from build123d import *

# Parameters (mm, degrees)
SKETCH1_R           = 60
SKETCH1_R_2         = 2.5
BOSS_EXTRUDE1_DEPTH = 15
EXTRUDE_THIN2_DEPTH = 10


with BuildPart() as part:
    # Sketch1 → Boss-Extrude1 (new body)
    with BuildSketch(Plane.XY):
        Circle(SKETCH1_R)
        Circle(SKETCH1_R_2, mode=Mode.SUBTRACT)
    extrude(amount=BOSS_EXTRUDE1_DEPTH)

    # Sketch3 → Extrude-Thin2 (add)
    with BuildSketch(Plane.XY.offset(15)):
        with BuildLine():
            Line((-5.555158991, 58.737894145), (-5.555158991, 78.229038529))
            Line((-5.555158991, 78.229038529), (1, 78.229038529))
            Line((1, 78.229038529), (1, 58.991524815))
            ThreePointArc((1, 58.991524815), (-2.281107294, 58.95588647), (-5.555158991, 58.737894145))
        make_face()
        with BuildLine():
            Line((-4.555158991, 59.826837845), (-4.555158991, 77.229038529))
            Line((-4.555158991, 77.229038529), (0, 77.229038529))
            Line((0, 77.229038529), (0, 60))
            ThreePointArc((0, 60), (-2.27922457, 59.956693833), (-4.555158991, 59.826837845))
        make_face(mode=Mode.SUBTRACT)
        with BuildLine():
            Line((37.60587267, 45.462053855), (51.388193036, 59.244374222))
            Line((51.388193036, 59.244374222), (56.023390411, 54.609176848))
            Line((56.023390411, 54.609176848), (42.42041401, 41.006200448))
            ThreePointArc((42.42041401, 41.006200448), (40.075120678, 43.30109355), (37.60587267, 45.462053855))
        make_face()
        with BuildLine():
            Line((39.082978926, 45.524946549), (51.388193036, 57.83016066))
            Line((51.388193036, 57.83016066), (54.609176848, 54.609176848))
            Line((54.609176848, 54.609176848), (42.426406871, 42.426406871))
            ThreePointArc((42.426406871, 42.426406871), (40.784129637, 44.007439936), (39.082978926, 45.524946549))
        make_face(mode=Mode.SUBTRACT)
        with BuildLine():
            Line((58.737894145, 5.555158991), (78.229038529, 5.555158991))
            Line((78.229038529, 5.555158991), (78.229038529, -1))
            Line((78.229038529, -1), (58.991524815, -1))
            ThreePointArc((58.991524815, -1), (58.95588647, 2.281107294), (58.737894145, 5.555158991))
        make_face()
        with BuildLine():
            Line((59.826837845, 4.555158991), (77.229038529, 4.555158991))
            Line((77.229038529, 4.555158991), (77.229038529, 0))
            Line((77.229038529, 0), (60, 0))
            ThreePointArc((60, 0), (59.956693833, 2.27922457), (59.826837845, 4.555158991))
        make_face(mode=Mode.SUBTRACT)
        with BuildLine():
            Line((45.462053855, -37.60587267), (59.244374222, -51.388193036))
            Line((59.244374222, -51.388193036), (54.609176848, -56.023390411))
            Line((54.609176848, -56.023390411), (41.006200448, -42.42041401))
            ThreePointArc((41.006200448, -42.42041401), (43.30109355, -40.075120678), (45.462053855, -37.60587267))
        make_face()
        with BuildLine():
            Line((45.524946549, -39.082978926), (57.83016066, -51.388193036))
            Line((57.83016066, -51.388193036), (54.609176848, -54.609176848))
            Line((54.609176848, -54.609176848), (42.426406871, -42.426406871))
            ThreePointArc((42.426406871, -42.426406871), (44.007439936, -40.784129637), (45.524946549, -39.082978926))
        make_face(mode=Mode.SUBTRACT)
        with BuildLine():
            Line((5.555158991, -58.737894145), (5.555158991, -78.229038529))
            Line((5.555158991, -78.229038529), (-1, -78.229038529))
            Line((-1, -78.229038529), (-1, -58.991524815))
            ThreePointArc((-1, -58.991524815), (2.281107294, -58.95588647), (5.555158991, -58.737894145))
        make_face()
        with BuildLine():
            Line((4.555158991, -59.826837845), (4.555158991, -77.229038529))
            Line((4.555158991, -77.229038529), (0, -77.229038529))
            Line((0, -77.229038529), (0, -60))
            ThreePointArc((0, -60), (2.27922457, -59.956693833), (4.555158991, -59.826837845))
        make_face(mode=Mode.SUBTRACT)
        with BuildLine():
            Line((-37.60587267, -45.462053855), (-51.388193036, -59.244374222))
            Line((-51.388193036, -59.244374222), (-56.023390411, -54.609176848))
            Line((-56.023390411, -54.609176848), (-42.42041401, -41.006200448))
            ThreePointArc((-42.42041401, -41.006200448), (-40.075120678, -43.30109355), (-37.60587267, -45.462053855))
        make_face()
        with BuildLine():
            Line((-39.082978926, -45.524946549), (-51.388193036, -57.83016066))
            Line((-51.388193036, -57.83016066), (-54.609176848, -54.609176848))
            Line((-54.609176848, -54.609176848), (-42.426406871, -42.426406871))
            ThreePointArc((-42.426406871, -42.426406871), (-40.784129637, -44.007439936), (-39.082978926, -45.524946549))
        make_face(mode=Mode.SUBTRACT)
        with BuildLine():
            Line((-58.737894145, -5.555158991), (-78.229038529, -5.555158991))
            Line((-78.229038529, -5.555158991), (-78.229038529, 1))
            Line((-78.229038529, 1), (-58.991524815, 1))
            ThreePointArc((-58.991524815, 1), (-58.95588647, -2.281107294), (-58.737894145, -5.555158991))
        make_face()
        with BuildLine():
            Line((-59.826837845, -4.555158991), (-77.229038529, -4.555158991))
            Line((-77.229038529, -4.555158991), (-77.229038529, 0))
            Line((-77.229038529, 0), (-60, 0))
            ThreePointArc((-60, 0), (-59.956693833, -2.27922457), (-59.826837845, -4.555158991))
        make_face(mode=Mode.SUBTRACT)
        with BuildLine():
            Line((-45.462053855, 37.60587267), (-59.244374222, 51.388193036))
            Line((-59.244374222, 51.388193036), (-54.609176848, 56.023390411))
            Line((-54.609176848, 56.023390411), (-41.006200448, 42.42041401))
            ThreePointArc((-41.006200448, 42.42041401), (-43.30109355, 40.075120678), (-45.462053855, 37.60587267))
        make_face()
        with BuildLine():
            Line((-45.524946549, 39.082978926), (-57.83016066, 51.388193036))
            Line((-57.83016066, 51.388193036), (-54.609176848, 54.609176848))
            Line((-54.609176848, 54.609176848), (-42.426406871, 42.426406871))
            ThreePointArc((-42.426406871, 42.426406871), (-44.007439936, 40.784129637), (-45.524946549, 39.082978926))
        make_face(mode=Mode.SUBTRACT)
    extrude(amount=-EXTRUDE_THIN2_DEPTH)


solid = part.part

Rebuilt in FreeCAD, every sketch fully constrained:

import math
import FreeCAD as App
import Part
import Sketcher

V = App.Vector

doc = App.newDocument("Part")
body = doc.addObject("PartDesign::Body", "Body")

# Sketch on XY plane
sketch1 = body.newObject("Sketcher::SketchObject", "Sketch")
sketch1.AttachmentSupport = (doc.getObject("XY_Plane"), [""])
sketch1.MapMode = "FlatFace"
sketch1.addGeometry(Part.Circle(V(0, 0, 0), V(0, 0, 1), 60), False)
sketch1.addGeometry(Part.Circle(V(0, 0, 0), V(0, 0, 1), 2.5), False)
sketch1.addConstraint(Sketcher.Constraint("Coincident", 0, 3, -1, 1))
sketch1.addConstraint(Sketcher.Constraint("Coincident", 1, 3, -1, 1))
sketch1.addConstraint(Sketcher.Constraint("Diameter", 0, 120.0))
sketch1.addConstraint(Sketcher.Constraint("Diameter", 1, 5.0))
pad1 = body.newObject("PartDesign::Pad", "Pad")
pad1.Profile = sketch1
pad1.Length = 15

# Sketch on XY plane
sketch2 = body.newObject("Sketcher::SketchObject", "Sketch001")
sketch2.AttachmentSupport = (doc.getObject("XY_Plane"), [""])
sketch2.MapMode = "FlatFace"
sketch2.AttachmentOffset = App.Placement(V(0, 0, 15), App.Rotation())
sketch2.addGeometry(Part.LineSegment(V(-5.6, 78.2, 0), V(-5.6, 58.7, 0)), False)
sketch2.addGeometry(Part.ArcOfCircle(Part.Circle(V(0, 0, 0), V(0, 0, 1), 59), math.radians(89.03), math.radians(95.4)), False)
sketch2.addGeometry(Part.LineSegment(V(1, 59, 0), V(1, 78.2, 0)), False)
sketch2.addGeometry(Part.LineSegment(V(1, 78.2, 0), V(-5.6, 78.2, 0)), False)
sketch2.addGeometry(Part.LineSegment(V(-4.6, 59.8, 0), V(-4.6, 77.2, 0)), False)
sketch2.addGeometry(Part.LineSegment(V(-4.6, 77.2, 0), V(0, 77.2, 0)), False)
sketch2.addGeometry(Part.LineSegment(V(0, 77.2, 0), V(0, 60, 0)), False)
sketch2.addGeometry(Part.ArcOfCircle(Part.Circle(V(0, 0, 0), V(0, 0, 1), 60), math.radians(90), math.radians(94.35)), False)
sketch2.addGeometry(Part.LineSegment(V(51.4, 59.2, 0), V(37.6, 45.5, 0)), False)
sketch2.addGeometry(Part.ArcOfCircle(Part.Circle(V(0, 0, 0), V(0, 0, 1), 59), math.radians(44.03), math.radians(50.4)), False)
sketch2.addGeometry(Part.LineSegment(V(42.4, 41, 0), V(56, 54.6, 0)), False)
sketch2.addGeometry(Part.LineSegment(V(56, 54.6, 0), V(51.4, 59.2, 0)), False)
sketch2.addGeometry(Part.LineSegment(V(39.1, 45.5, 0), V(51.4, 57.8, 0)), False)
sketch2.addGeometry(Part.LineSegment(V(51.4, 57.8, 0), V(54.6, 54.6, 0)), False)
sketch2.addGeometry(Part.LineSegment(V(54.6, 54.6, 0), V(42.4, 42.4, 0)), False)
sketch2.addGeometry(Part.ArcOfCircle(Part.Circle(V(0, 0, 0), V(0, 0, 1), 60), math.radians(45), math.radians(49.35)), False)
sketch2.addGeometry(Part.LineSegment(V(78.2, 5.6, 0), V(58.7, 5.6, 0)), False)
sketch2.addGeometry(Part.ArcOfCircle(Part.Circle(V(0, 0, 0), V(0, 0, 1), 59), math.radians(-0.97), math.radians(5.4)), False)
sketch2.addGeometry(Part.LineSegment(V(59, -1, 0), V(78.2, -1, 0)), False)
sketch2.addGeometry(Part.LineSegment(V(78.2, -1, 0), V(78.2, 5.6, 0)), False)
sketch2.addGeometry(Part.LineSegment(V(59.8, 4.6, 0), V(77.2, 4.6, 0)), False)
sketch2.addGeometry(Part.LineSegment(V(77.2, 4.6, 0), V(77.2, 0, 0)), False)
sketch2.addGeometry(Part.LineSegment(V(77.2, 0, 0), V(60, 0, 0)), False)
sketch2.addGeometry(Part.ArcOfCircle(Part.Circle(V(0, 0, 0), V(0, 0, 1), 60), math.radians(0), math.radians(4.35)), False)
sketch2.addGeometry(Part.LineSegment(V(59.2, -51.4, 0), V(45.5, -37.6, 0)), False)
sketch2.addGeometry(Part.ArcOfCircle(Part.Circle(V(0, 0, 0), V(0, 0, 1), 59), math.radians(-45.97), math.radians(-39.6)), False)
sketch2.addGeometry(Part.LineSegment(V(41, -42.4, 0), V(54.6, -56, 0)), False)
sketch2.addGeometry(Part.LineSegment(V(54.6, -56, 0), V(59.2, -51.4, 0)), False)
sketch2.addGeometry(Part.LineSegment(V(45.5, -39.1, 0), V(57.8, -51.4, 0)), False)
sketch2.addGeometry(Part.LineSegment(V(57.8, -51.4, 0), V(54.6, -54.6, 0)), False)
sketch2.addGeometry(Part.LineSegment(V(54.6, -54.6, 0), V(42.4, -42.4, 0)), False)
sketch2.addGeometry(Part.ArcOfCircle(Part.Circle(V(0, 0, 0), V(0, 0, 1), 60), math.radians(-45), math.radians(-40.65)), False)
sketch2.addGeometry(Part.LineSegment(V(5.6, -78.2, 0), V(5.6, -58.7, 0)), False)
sketch2.addGeometry(Part.ArcOfCircle(Part.Circle(V(0, 0, 0), V(0, 0, 1), 59), math.radians(-90.97), math.radians(-84.6)), False)
sketch2.addGeometry(Part.LineSegment(V(-1, -59, 0), V(-1, -78.2, 0)), False)
sketch2.addGeometry(Part.LineSegment(V(-1, -78.2, 0), V(5.6, -78.2, 0)), False)
sketch2.addGeometry(Part.LineSegment(V(4.6, -59.8, 0), V(4.6, -77.2, 0)), False)
sketch2.addGeometry(Part.LineSegment(V(4.6, -77.2, 0), V(0, -77.2, 0)), False)
sketch2.addGeometry(Part.LineSegment(V(0, -77.2, 0), V(0, -60, 0)), False)
sketch2.addGeometry(Part.ArcOfCircle(Part.Circle(V(0, 0, 0), V(0, 0, 1), 60), math.radians(-90), math.radians(-85.65)), False)
sketch2.addGeometry(Part.LineSegment(V(-51.4, -59.2, 0), V(-37.6, -45.5, 0)), False)
sketch2.addGeometry(Part.ArcOfCircle(Part.Circle(V(0, 0, 0), V(0, 0, 1), 59), math.radians(-135.97), math.radians(-129.6)), False)
sketch2.addGeometry(Part.LineSegment(V(-42.4, -41, 0), V(-56, -54.6, 0)), False)
sketch2.addGeometry(Part.LineSegment(V(-56, -54.6, 0), V(-51.4, -59.2, 0)), False)
sketch2.addGeometry(Part.LineSegment(V(-39.1, -45.5, 0), V(-51.4, -57.8, 0)), False)
sketch2.addGeometry(Part.LineSegment(V(-51.4, -57.8, 0), V(-54.6, -54.6, 0)), False)
sketch2.addGeometry(Part.LineSegment(V(-54.6, -54.6, 0), V(-42.4, -42.4, 0)), False)
sketch2.addGeometry(Part.ArcOfCircle(Part.Circle(V(0, 0, 0), V(0, 0, 1), 60), math.radians(-135), math.radians(-130.65)), False)
sketch2.addGeometry(Part.LineSegment(V(-78.2, -5.6, 0), V(-58.7, -5.6, 0)), False)
sketch2.addGeometry(Part.ArcOfCircle(Part.Circle(V(0, 0, 0), V(0, 0, 1), 59), math.radians(179.03), math.radians(185.4)), False)
sketch2.addGeometry(Part.LineSegment(V(-59, 1, 0), V(-78.2, 1, 0)), False)
sketch2.addGeometry(Part.LineSegment(V(-78.2, 1, 0), V(-78.2, -5.6, 0)), False)
sketch2.addGeometry(Part.LineSegment(V(-59.8, -4.6, 0), V(-77.2, -4.6, 0)), False)
sketch2.addGeometry(Part.LineSegment(V(-77.2, -4.6, 0), V(-77.2, 0, 0)), False)
sketch2.addGeometry(Part.LineSegment(V(-77.2, 0, 0), V(-60, 0, 0)), False)
sketch2.addGeometry(Part.ArcOfCircle(Part.Circle(V(0, 0, 0), V(0, 0, 1), 60), math.radians(180), math.radians(184.35)), False)
sketch2.addGeometry(Part.LineSegment(V(-59.2, 51.4, 0), V(-45.5, 37.6, 0)), False)
sketch2.addGeometry(Part.ArcOfCircle(Part.Circle(V(0, 0, 0), V(0, 0, 1), 59), math.radians(134.03), math.radians(140.4)), False)
sketch2.addGeometry(Part.LineSegment(V(-41, 42.4, 0), V(-54.6, 56, 0)), False)
sketch2.addGeometry(Part.LineSegment(V(-54.6, 56, 0), V(-59.2, 51.4, 0)), False)
sketch2.addGeometry(Part.LineSegment(V(-45.5, 39.1, 0), V(-57.8, 51.4, 0)), False)
sketch2.addGeometry(Part.LineSegment(V(-57.8, 51.4, 0), V(-54.6, 54.6, 0)), False)
sketch2.addGeometry(Part.LineSegment(V(-54.6, 54.6, 0), V(-42.4, 42.4, 0)), False)
sketch2.addGeometry(Part.ArcOfCircle(Part.Circle(V(0, 0, 0), V(0, 0, 1), 60), math.radians(135), math.radians(139.35)), False)
sketch2.addConstraint(Sketcher.Constraint("Coincident", 0, 2, 1, 2))
sketch2.addConstraint(Sketcher.Constraint("Coincident", 1, 1, 2, 1))
sketch2.addConstraint(Sketcher.Constraint("Coincident", 2, 2, 3, 1))
sketch2.addConstraint(Sketcher.Constraint("Coincident", 3, 2, 0, 1))
sketch2.addConstraint(Sketcher.Constraint("Coincident", 4, 2, 5, 1))
sketch2.addConstraint(Sketcher.Constraint("Coincident", 5, 2, 6, 1))
sketch2.addConstraint(Sketcher.Constraint("Coincident", 6, 2, 7, 1))
sketch2.addConstraint(Sketcher.Constraint("Coincident", 7, 2, 4, 1))
sketch2.addConstraint(Sketcher.Constraint("Coincident", 8, 2, 9, 2))
sketch2.addConstraint(Sketcher.Constraint("Coincident", 9, 1, 10, 1))
sketch2.addConstraint(Sketcher.Constraint("Coincident", 10, 2, 11, 1))
sketch2.addConstraint(Sketcher.Constraint("Coincident", 11, 2, 8, 1))
sketch2.addConstraint(Sketcher.Constraint("Coincident", 12, 2, 13, 1))
sketch2.addConstraint(Sketcher.Constraint("Coincident", 13, 2, 14, 1))
sketch2.addConstraint(Sketcher.Constraint("Coincident", 14, 2, 15, 1))
sketch2.addConstraint(Sketcher.Constraint("Coincident", 15, 2, 12, 1))
sketch2.addConstraint(Sketcher.Constraint("Coincident", 16, 2, 17, 2))
sketch2.addConstraint(Sketcher.Constraint("Coincident", 17, 1, 18, 1))
sketch2.addConstraint(Sketcher.Constraint("Coincident", 18, 2, 19, 1))
sketch2.addConstraint(Sketcher.Constraint("Coincident", 19, 2, 16, 1))
sketch2.addConstraint(Sketcher.Constraint("Coincident", 20, 2, 21, 1))
sketch2.addConstraint(Sketcher.Constraint("Coincident", 21, 2, 22, 1))
sketch2.addConstraint(Sketcher.Constraint("Coincident", 22, 2, 23, 1))
sketch2.addConstraint(Sketcher.Constraint("Coincident", 23, 2, 20, 1))
sketch2.addConstraint(Sketcher.Constraint("Coincident", 24, 2, 25, 2))
sketch2.addConstraint(Sketcher.Constraint("Coincident", 25, 1, 26, 1))
sketch2.addConstraint(Sketcher.Constraint("Coincident", 26, 2, 27, 1))
sketch2.addConstraint(Sketcher.Constraint("Coincident", 27, 2, 24, 1))
sketch2.addConstraint(Sketcher.Constraint("Coincident", 28, 2, 29, 1))
sketch2.addConstraint(Sketcher.Constraint("Coincident", 29, 2, 30, 1))
sketch2.addConstraint(Sketcher.Constraint("Coincident", 30, 2, 31, 1))
sketch2.addConstraint(Sketcher.Constraint("Coincident", 31, 2, 28, 1))
sketch2.addConstraint(Sketcher.Constraint("Coincident", 32, 2, 33, 2))
sketch2.addConstraint(Sketcher.Constraint("Coincident", 33, 1, 34, 1))
sketch2.addConstraint(Sketcher.Constraint("Coincident", 34, 2, 35, 1))
sketch2.addConstraint(Sketcher.Constraint("Coincident", 35, 2, 32, 1))
sketch2.addConstraint(Sketcher.Constraint("Coincident", 36, 2, 37, 1))
sketch2.addConstraint(Sketcher.Constraint("Coincident", 37, 2, 38, 1))
sketch2.addConstraint(Sketcher.Constraint("Coincident", 38, 2, 39, 1))
sketch2.addConstraint(Sketcher.Constraint("Coincident", 39, 2, 36, 1))
sketch2.addConstraint(Sketcher.Constraint("Coincident", 40, 2, 41, 2))
sketch2.addConstraint(Sketcher.Constraint("Coincident", 41, 1, 42, 1))
sketch2.addConstraint(Sketcher.Constraint("Coincident", 42, 2, 43, 1))
sketch2.addConstraint(Sketcher.Constraint("Coincident", 43, 2, 40, 1))
sketch2.addConstraint(Sketcher.Constraint("Coincident", 44, 2, 45, 1))
sketch2.addConstraint(Sketcher.Constraint("Coincident", 45, 2, 46, 1))
sketch2.addConstraint(Sketcher.Constraint("Coincident", 46, 2, 47, 1))
sketch2.addConstraint(Sketcher.Constraint("Coincident", 47, 2, 44, 1))
sketch2.addConstraint(Sketcher.Constraint("Coincident", 48, 2, 49, 2))
sketch2.addConstraint(Sketcher.Constraint("Coincident", 49, 1, 50, 1))
sketch2.addConstraint(Sketcher.Constraint("Coincident", 50, 2, 51, 1))
sketch2.addConstraint(Sketcher.Constraint("Coincident", 51, 2, 48, 1))
sketch2.addConstraint(Sketcher.Constraint("Coincident", 52, 2, 53, 1))
sketch2.addConstraint(Sketcher.Constraint("Coincident", 53, 2, 54, 1))
sketch2.addConstraint(Sketcher.Constraint("Coincident", 54, 2, 55, 1))
sketch2.addConstraint(Sketcher.Constraint("Coincident", 55, 2, 52, 1))
sketch2.addConstraint(Sketcher.Constraint("Coincident", 56, 2, 57, 2))
sketch2.addConstraint(Sketcher.Constraint("Coincident", 57, 1, 58, 1))
sketch2.addConstraint(Sketcher.Constraint("Coincident", 58, 2, 59, 1))
sketch2.addConstraint(Sketcher.Constraint("Coincident", 59, 2, 56, 1))
sketch2.addConstraint(Sketcher.Constraint("Coincident", 60, 2, 61, 1))
sketch2.addConstraint(Sketcher.Constraint("Coincident", 61, 2, 62, 1))
sketch2.addConstraint(Sketcher.Constraint("Coincident", 62, 2, 63, 1))
sketch2.addConstraint(Sketcher.Constraint("Coincident", 63, 2, 60, 1))
sketch2.addConstraint(Sketcher.Constraint("Vertical", 0))
sketch2.addConstraint(Sketcher.Constraint("Vertical", 2))
sketch2.addConstraint(Sketcher.Constraint("Horizontal", 3))
sketch2.addConstraint(Sketcher.Constraint("Vertical", 4))
sketch2.addConstraint(Sketcher.Constraint("Horizontal", 5))
sketch2.addConstraint(Sketcher.Constraint("Vertical", 6))
sketch2.addConstraint(Sketcher.Constraint("Horizontal", 16))
sketch2.addConstraint(Sketcher.Constraint("Horizontal", 18))
sketch2.addConstraint(Sketcher.Constraint("Vertical", 19))
sketch2.addConstraint(Sketcher.Constraint("Horizontal", 20))
sketch2.addConstraint(Sketcher.Constraint("Vertical", 21))
sketch2.addConstraint(Sketcher.Constraint("Horizontal", 22))
sketch2.addConstraint(Sketcher.Constraint("Vertical", 32))
sketch2.addConstraint(Sketcher.Constraint("Vertical", 34))
sketch2.addConstraint(Sketcher.Constraint("Horizontal", 35))
sketch2.addConstraint(Sketcher.Constraint("Vertical", 36))
sketch2.addConstraint(Sketcher.Constraint("Horizontal", 37))
sketch2.addConstraint(Sketcher.Constraint("Vertical", 38))
sketch2.addConstraint(Sketcher.Constraint("Horizontal", 48))
sketch2.addConstraint(Sketcher.Constraint("Horizontal", 50))
sketch2.addConstraint(Sketcher.Constraint("Vertical", 51))
sketch2.addConstraint(Sketcher.Constraint("Horizontal", 52))
sketch2.addConstraint(Sketcher.Constraint("Vertical", 53))
sketch2.addConstraint(Sketcher.Constraint("Horizontal", 54))
sketch2.addConstraint(Sketcher.Constraint("Coincident", 1, 3, -1, 1))
sketch2.addConstraint(Sketcher.Constraint("Coincident", 7, 3, -1, 1))
sketch2.addConstraint(Sketcher.Constraint("Coincident", 9, 3, -1, 1))
sketch2.addConstraint(Sketcher.Constraint("Coincident", 15, 3, -1, 1))
sketch2.addConstraint(Sketcher.Constraint("Coincident", 17, 3, -1, 1))
sketch2.addConstraint(Sketcher.Constraint("Coincident", 23, 3, -1, 1))
sketch2.addConstraint(Sketcher.Constraint("Coincident", 25, 3, -1, 1))
sketch2.addConstraint(Sketcher.Constraint("Coincident", 31, 3, -1, 1))
sketch2.addConstraint(Sketcher.Constraint("Coincident", 33, 3, -1, 1))
sketch2.addConstraint(Sketcher.Constraint("Coincident", 39, 3, -1, 1))
sketch2.addConstraint(Sketcher.Constraint("Coincident", 41, 3, -1, 1))
sketch2.addConstraint(Sketcher.Constraint("Coincident", 47, 3, -1, 1))
sketch2.addConstraint(Sketcher.Constraint("Coincident", 49, 3, -1, 1))
sketch2.addConstraint(Sketcher.Constraint("Coincident", 55, 3, -1, 1))
sketch2.addConstraint(Sketcher.Constraint("Coincident", 57, 3, -1, 1))
sketch2.addConstraint(Sketcher.Constraint("Coincident", 63, 3, -1, 1))
sketch2.addConstraint(Sketcher.Constraint("Equal", 1, 9))
sketch2.addConstraint(Sketcher.Constraint("Equal", 7, 15))
sketch2.addConstraint(Sketcher.Constraint("Equal", 9, 17))
sketch2.addConstraint(Sketcher.Constraint("Equal", 15, 23))
sketch2.addConstraint(Sketcher.Constraint("Equal", 17, 25))
sketch2.addConstraint(Sketcher.Constraint("Equal", 23, 31))
sketch2.addConstraint(Sketcher.Constraint("Equal", 25, 33))
sketch2.addConstraint(Sketcher.Constraint("Equal", 31, 39))
sketch2.addConstraint(Sketcher.Constraint("Equal", 33, 41))
sketch2.addConstraint(Sketcher.Constraint("Equal", 39, 47))
sketch2.addConstraint(Sketcher.Constraint("Equal", 41, 49))
sketch2.addConstraint(Sketcher.Constraint("Equal", 47, 55))
sketch2.addConstraint(Sketcher.Constraint("Equal", 49, 57))
sketch2.addConstraint(Sketcher.Constraint("Equal", 55, 63))
sketch2.addConstraint(Sketcher.Constraint("Symmetric", 2, 2, 34, 2, -1, 1))
sketch2.addConstraint(Sketcher.Constraint("Symmetric", 4, 2, 36, 2, -1, 1))
sketch2.addConstraint(Sketcher.Constraint("Symmetric", 10, 2, 42, 2, -1, 1))
sketch2.addConstraint(Sketcher.Constraint("Symmetric", 11, 2, 43, 2, -1, 1))
sketch2.addConstraint(Sketcher.Constraint("Symmetric", 12, 2, 44, 2, -1, 1))
sketch2.addConstraint(Sketcher.Constraint("Symmetric", 13, 2, 45, 2, -1, 1))
sketch2.addConstraint(Sketcher.Constraint("Symmetric", 18, 2, 50, 2, -1, 1))
sketch2.addConstraint(Sketcher.Constraint("Symmetric", 20, 2, 52, 2, -1, 1))
sketch2.addConstraint(Sketcher.Constraint("Symmetric", 26, 2, 58, 2, -1, 1))
sketch2.addConstraint(Sketcher.Constraint("Symmetric", 27, 2, 59, 2, -1, 1))
sketch2.addConstraint(Sketcher.Constraint("Symmetric", 28, 2, 60, 2, -1, 1))
sketch2.addConstraint(Sketcher.Constraint("Symmetric", 29, 2, 61, 2, -1, 1))
sketch2.addConstraint(Sketcher.Constraint("Symmetric", 29, 2, 45, 2, -2))
sketch2.addConstraint(Sketcher.Constraint("PointOnObject", 5, 2, -2))
sketch2.addConstraint(Sketcher.Constraint("PointOnObject", 21, 2, -1))
sketch2.addConstraint(Sketcher.Constraint("PointOnObject", 37, 2, -2))
sketch2.addConstraint(Sketcher.Constraint("PointOnObject", 53, 2, -1))
sketch2.addConstraint(Sketcher.Constraint("Parallel", 8, 10))
sketch2.addConstraint(Sketcher.Constraint("Perpendicular", 10, 11))
sketch2.addConstraint(Sketcher.Constraint("Perpendicular", 11, 12))
sketch2.addConstraint(Sketcher.Constraint("Perpendicular", 12, 13))
sketch2.addConstraint(Sketcher.Constraint("Perpendicular", 13, 14))
sketch2.addConstraint(Sketcher.Constraint("Perpendicular", 14, 24))
sketch2.addConstraint(Sketcher.Constraint("Parallel", 24, 26))
sketch2.addConstraint(Sketcher.Constraint("Perpendicular", 26, 27))
sketch2.addConstraint(Sketcher.Constraint("Perpendicular", 27, 28))
sketch2.addConstraint(Sketcher.Constraint("Perpendicular", 28, 29))
sketch2.addConstraint(Sketcher.Constraint("Perpendicular", 29, 30))
sketch2.addConstraint(Sketcher.Constraint("Perpendicular", 30, 40))
sketch2.addConstraint(Sketcher.Constraint("Parallel", 40, 42))
sketch2.addConstraint(Sketcher.Constraint("Perpendicular", 43, 44))
sketch2.addConstraint(Sketcher.Constraint("Perpendicular", 45, 46))
sketch2.addConstraint(Sketcher.Constraint("Perpendicular", 46, 56))
sketch2.addConstraint(Sketcher.Constraint("Parallel", 56, 58))
sketch2.addConstraint(Sketcher.Constraint("Perpendicular", 59, 60))
sketch2.addConstraint(Sketcher.Constraint("Perpendicular", 61, 62))
sketch2.addConstraint(Sketcher.Constraint("Horizontal", 10, 2, 13, 2))
sketch2.addConstraint(Sketcher.Constraint("Horizontal", 27, 2, 28, 2))
sketch2.addConstraint(Sketcher.Constraint("Horizontal", 30, 2, 46, 2))
sketch2.addConstraint(Sketcher.Constraint("Vertical", 11, 2, 12, 2))
sketch2.addConstraint(Sketcher.Constraint("Vertical", 13, 2, 26, 2))
sketch2.addConstraint(Sketcher.Constraint("Equal", 3, 35))
sketch2.addConstraint(Sketcher.Constraint("Equal", 16, 48))
sketch2.addConstraint(Sketcher.Constraint("Equal", 48, 0))
sketch2.addConstraint(Sketcher.Constraint("Equal", 50, 2))
sketch2.addConstraint(Sketcher.Constraint("Equal", 52, 4))
sketch2.addConstraint(Sketcher.Constraint("Equal", 54, 6))
sketch2.addConstraint(Sketcher.Constraint("Equal", 35, 19))
sketch2.addConstraint(Sketcher.Constraint("Equal", 8, 24))
sketch2.addConstraint(Sketcher.Constraint("Equal", 10, 26))
sketch2.addConstraint(Sketcher.Constraint("Equal", 11, 27))
sketch2.addConstraint(Sketcher.Constraint("Radius", 1, 59.0))
sketch2.addConstraint(Sketcher.Constraint("Radius", 7, 60.0))
sketch2.addConstraint(Sketcher.Constraint("DistanceX", -1, 1, 1, 1, 1.0))
sketch2.addConstraint(Sketcher.Constraint("DistanceX", 20, 1, 20, 2, 17.402201))
sketch2.addConstraint(Sketcher.Constraint("Distance", 12, 17.402201))
sketch2.addConstraint(Sketcher.Constraint("DistanceX", 3, 2, 3, 1, 6.555159))
sketch2.addConstraint(Sketcher.Constraint("DistanceX", 5, 1, 5, 2, 4.555159))
sketch2.addConstraint(Sketcher.Constraint("DistanceY", -1, 1, 9, 1, 41.0062))
sketch2.addConstraint(Sketcher.Constraint("Distance", 11, 6.555159))
sketch2.addConstraint(Sketcher.Constraint("DistanceX", 16, 2, 16, 1, 19.491144))
pad2 = body.newObject("PartDesign::Pad", "Pad001")
pad2.Profile = sketch2
pad2.Length = 10
pad2.Reversed = True

doc.recompute()
